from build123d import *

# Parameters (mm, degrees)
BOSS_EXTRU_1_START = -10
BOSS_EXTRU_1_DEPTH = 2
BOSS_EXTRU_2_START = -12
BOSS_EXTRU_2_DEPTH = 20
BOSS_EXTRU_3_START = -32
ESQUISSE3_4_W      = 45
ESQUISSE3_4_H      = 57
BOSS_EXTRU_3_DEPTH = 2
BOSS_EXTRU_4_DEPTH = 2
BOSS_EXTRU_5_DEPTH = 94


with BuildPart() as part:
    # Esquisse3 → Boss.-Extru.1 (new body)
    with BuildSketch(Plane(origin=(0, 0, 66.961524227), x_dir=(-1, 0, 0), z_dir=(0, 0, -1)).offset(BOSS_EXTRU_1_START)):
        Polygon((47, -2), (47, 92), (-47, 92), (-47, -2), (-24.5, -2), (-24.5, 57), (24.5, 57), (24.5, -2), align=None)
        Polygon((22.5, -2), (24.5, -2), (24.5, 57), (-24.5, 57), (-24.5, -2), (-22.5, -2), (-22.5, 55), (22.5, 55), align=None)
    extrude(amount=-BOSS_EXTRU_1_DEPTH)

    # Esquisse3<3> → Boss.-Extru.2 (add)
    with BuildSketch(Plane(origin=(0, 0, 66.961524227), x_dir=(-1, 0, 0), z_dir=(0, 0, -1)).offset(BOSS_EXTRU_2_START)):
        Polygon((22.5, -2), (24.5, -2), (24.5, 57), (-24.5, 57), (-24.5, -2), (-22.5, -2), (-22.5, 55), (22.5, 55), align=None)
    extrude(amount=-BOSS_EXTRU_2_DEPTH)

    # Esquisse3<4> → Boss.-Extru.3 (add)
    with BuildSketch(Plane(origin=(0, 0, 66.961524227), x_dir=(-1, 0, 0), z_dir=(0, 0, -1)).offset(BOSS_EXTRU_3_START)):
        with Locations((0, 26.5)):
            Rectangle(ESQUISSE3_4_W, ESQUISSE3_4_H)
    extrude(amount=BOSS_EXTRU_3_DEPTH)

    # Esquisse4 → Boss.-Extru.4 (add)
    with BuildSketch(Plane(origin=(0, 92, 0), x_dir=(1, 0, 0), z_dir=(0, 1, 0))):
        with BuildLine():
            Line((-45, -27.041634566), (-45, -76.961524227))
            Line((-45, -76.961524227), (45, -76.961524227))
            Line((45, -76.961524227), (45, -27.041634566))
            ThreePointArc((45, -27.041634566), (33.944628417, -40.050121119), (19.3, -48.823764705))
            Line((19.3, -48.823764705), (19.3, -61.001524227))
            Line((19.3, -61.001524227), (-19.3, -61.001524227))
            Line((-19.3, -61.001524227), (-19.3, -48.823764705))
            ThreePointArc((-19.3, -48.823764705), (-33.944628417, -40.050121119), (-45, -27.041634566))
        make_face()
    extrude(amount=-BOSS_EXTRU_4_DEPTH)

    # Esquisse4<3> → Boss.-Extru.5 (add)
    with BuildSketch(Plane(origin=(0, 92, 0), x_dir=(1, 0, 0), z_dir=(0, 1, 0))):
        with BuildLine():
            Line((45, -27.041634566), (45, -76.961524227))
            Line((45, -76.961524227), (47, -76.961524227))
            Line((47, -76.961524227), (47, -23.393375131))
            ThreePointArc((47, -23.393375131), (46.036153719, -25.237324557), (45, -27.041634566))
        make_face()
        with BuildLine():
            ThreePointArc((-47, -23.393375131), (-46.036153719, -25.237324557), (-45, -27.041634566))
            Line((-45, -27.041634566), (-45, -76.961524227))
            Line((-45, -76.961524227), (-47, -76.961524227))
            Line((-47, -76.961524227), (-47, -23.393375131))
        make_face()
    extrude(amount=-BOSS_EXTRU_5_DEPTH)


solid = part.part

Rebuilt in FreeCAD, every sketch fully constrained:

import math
import FreeCAD as App
import Part
import Sketcher

V = App.Vector


def add_polygon(sketch, points):
    """Adds a closed chain of lines whose ends are joined by coincident constraints."""
    first, n = sketch.GeometryCount, len(points)
    for a, b in zip(points, points[1:] + points[:1]):
        sketch.addGeometry(Part.LineSegment(App.Vector(*a, 0), App.Vector(*b, 0)), False)
    for i in range(n):
        sketch.addConstraint(Sketcher.Constraint("Coincident", first + i, 2, first + (i + 1) % n, 1))

doc = App.newDocument("Part")
params = doc.addObject("Spreadsheet::Sheet", "Params")
for row, (alias, value) in enumerate([
    ("sketch1_width", "94 mm"),
    ("sketch1_width2", "45 mm"),
    ("sketch1_height", "57 mm"),
    ("pad1_length", "2 mm"),
    ("sketch2_width", "2 mm"),
    ("sketch2_width2", "49 mm"),
    ("sketch2_height", "59 mm"),
    ("sketch2_height2", "57 mm"),
    ("pad2_length", "20 mm"),
    ("sketch3_width", "45 mm"),
    ("sketch3_height", "57 mm"),
    ("pad3_length", "2 mm"),
    ("sketch4_radius", "52.5 mm"),
    ("sketch4_width", "90 mm"),
    ("sketch4_width2", "38.6 mm"),
    ("pad4_length", "2 mm"),
    ("sketch5_radius", "52.5 mm"),
    ("sketch5_width", "2 mm"),
    ("pad5_length", "94 mm"),
], start=1):
    params.set(f"A{row}", alias)
    params.set(f"B{row}", "=" + value)
    params.setAlias(f"B{row}", alias)

body = doc.addObject("PartDesign::Body", "Body")

sketch1 = body.newObject("Sketcher::SketchObject", "Sketch")
sketch1.AttachmentSupport = (doc.getObject("XY_Plane"), [""])
sketch1.MapMode = "FlatFace"
sketch1.AttachmentOffset = App.Placement(V(0, 0, 76.961524), App.Rotation())
add_polygon(sketch1, [(-47, -2), (-47, 92), (47, 92), (47, -2), (22, -2), (22, 55), (-22, 55), (-22, -2)])
sketch1.addConstraint([
    Sketcher.Constraint("Vertical", 0),
    Sketcher.Constraint("Horizontal", 1),
    Sketcher.Constraint("Vertical", 2),
    Sketcher.Constraint("Horizontal", 3),
    Sketcher.Constraint("Vertical", 4),
    Sketcher.Constraint("Horizontal", 5),
    Sketcher.Constraint("Vertical", 6),
    Sketcher.Constraint("Horizontal", 7),
    Sketcher.Constraint("Symmetric", 3, 2, 6, 2, -2),
    Sketcher.Constraint("Equal", 3, 7),
    Sketcher.Constraint("Equal", 1, 0),
    Sketcher.Constraint("DistanceX", 1, 1, 1, 2, 94.0),
    Sketcher.Constraint("DistanceX", 5, 2, 5, 1, 45.0),
    Sketcher.Constraint("DistanceY", 4, 1, 4, 2, 57.0),
    Sketcher.Constraint("DistanceY", -1, 1, 0, 2, 92.0),
])
sketch1.setExpression("Constraints[19]", "Params.sketch1_width")
sketch1.setExpression("Constraints[20]", "Params.sketch1_width2")
sketch1.setExpression("Constraints[21]", "Params.sketch1_height")
pad1 = body.newObject("PartDesign::Pad", "Pad")
pad1.Profile = sketch1
pad1.setExpression("Length", "Params.pad1_length")

sketch2 = body.newObject("Sketcher::SketchObject", "Sketch001")
sketch2.AttachmentSupport = (doc.getObject("XY_Plane"), [""])
sketch2.MapMode = "FlatFace"
sketch2.AttachmentOffset = App.Placement(V(0, 0, 78.961524), App.Rotation())
add_polygon(sketch2, [(-22.5, -2), (-24.5, -2), (-24.5, 57), (24.5, 57), (24.5, -2), (22.5, -2), (22.5, 55), (-22.5, 55)])
sketch2.addConstraint([
    Sketcher.Constraint("Horizontal", 0),
    Sketcher.Constraint("Vertical", 1),
    Sketcher.Constraint("Horizontal", 2),
    Sketcher.Constraint("Vertical", 3),
    Sketcher.Constraint("Horizontal", 4),
    Sketcher.Constraint("Vertical", 5),
    Sketcher.Constraint("Horizontal", 6),
    Sketcher.Constraint("Vertical", 7),
    Sketcher.Constraint("Symmetric", 0, 2, 3, 2, -2),
    Sketcher.Constraint("Equal", 0, 4),
    Sketcher.Constraint("DistanceX", 0, 2, 0, 1, 2.0),
    Sketcher.Constraint("DistanceX", 2, 1, 2, 2, 49.0),
    Sketcher.Constraint("DistanceY", 1, 1, 1, 2, 59.0),
    Sketcher.Constraint("DistanceY", 5, 1, 5, 2, 57.0),
    Sketcher.Constraint("DistanceY", 0, 2, -1, 1, 2.0),
])
sketch2.setExpression("Constraints[18]", "Params.sketch2_width")
sketch2.setExpression("Constraints[19]", "Params.sketch2_width2")
sketch2.setExpression("Constraints[20]", "Params.sketch2_height")
sketch2.setExpression("Constraints[21]", "Params.sketch2_height2")
pad2 = body.newObject("PartDesign::Pad", "Pad001")
pad2.Profile = sketch2
pad2.setExpression("Length", "Params.pad2_length")

sketch3 = body.newObject("Sketcher::SketchObject", "Sketch002")
sketch3.AttachmentSupport = (doc.getObject("XY_Plane"), [""])
sketch3.MapMode = "FlatFace"
sketch3.AttachmentOffset = App.Placement(V(0, 0, 98.961524), App.Rotation())
add_polygon(sketch3, [(22, 55), (22, -2), (-22, -2), (-22, 55)])
sketch3.addConstraint([
    Sketcher.Constraint("Vertical", 0),
    Sketcher.Constraint("Horizontal", 1),
    Sketcher.Constraint("Vertical", 2),
    Sketcher.Constraint("Horizontal", 3),
    Sketcher.Constraint("DistanceX", 1, 2, 1, 1, 45.0),
    Sketcher.Constraint("DistanceY", 0, 2, 0, 1, 57.0),
    Sketcher.Constraint("DistanceY", 0, 2, -1, 1, 2.0),
    Sketcher.Constraint("DistanceX", -1, 1, 0, 2, 22.5),
])
sketch3.setExpression("Constraints[8]", "Params.sketch3_width")
sketch3.setExpression("Constraints[9]", "Params.sketch3_height")
pad3 = body.newObject("PartDesign::Pad", "Pad002")
pad3.Profile = sketch3
pad3.setExpression("Length", "Params.pad3_length")
pad3.Reversed = True

sketch4 = body.newObject("Sketcher::SketchObject", "Sketch003")
sketch4.AttachmentSupport = (doc.getObject("XZ_Plane"), [""])
sketch4.MapMode = "FlatFace"
sketch4.AttachmentOffset = App.Placement(V(0, 0, -92), App.Rotation())
sketch4.addGeometry([
    Part.LineSegment(V(-45, 27, 0), V(-45, 77, 0)),
    Part.LineSegment(V(-45, 77, 0), V(45, 77, 0)),
    Part.LineSegment(V(45, 77, 0), V(45, 27, 0)),
    Part.ArcOfCircle(Part.Circle(V(0, 0, 0), V(0, 0, 1), 52), math.radians(31), math.radians(68)),
    Part.LineSegment(V(19, 49, 0), V(19, 61, 0)),
    Part.LineSegment(V(19, 61, 0), V(-19, 61, 0)),
    Part.LineSegment(V(-19, 61, 0), V(-19, 49, 0)),
    Part.ArcOfCircle(Part.Circle(V(0, 0, 0), V(0, 0, 1), 52), math.radians(112), math.radians(149)),
], False)
sketch4.addConstraint([
    Sketcher.Constraint("Coincident", 0, 2, 1, 1),
    Sketcher.Constraint("Coincident", 1, 2, 2, 1),
    Sketcher.Constraint("Coincident", 2, 2, 3, 1),
    Sketcher.Constraint("Coincident", 3, 2, 4, 1),
    Sketcher.Constraint("Coincident", 4, 2, 5, 1),
    Sketcher.Constraint("Coincident", 5, 2, 6, 1),
    Sketcher.Constraint("Coincident", 6, 2, 7, 1),
    Sketcher.Constraint("Coincident", 7, 2, 0, 1),
    Sketcher.Constraint("Vertical", 0),
    Sketcher.Constraint("Horizontal", 1),
    Sketcher.Constraint("Vertical", 2),
    Sketcher.Constraint("Vertical", 4),
    Sketcher.Constraint("Horizontal", 5),
    Sketcher.Constraint("Vertical", 6),
    Sketcher.Constraint("Coincident", 3, 3, -1, 1),
    Sketcher.Constraint("Coincident", 7, 3, -1, 1),
    Sketcher.Constraint("Equal", 3, 7),
    Sketcher.Constraint("Horizontal", 3, 2, 6, 2),
    Sketcher.Constraint("Horizontal", 2, 2, 7, 2),
    Sketcher.Constraint("Radius", 3, 52.5),
    Sketcher.Constraint("DistanceX", 1, 1, 1, 2, 90.0),
    Sketcher.Constraint("DistanceX", 5, 2, 5, 1, 38.6),
    Sketcher.Constraint("DistanceY", 4, 2, 1, 2, 15.96),
    Sketcher.Constraint("DistanceY", 0, 1, 0, 2, 49.91989),
])
sketch4.setExpression("Constraints[19]", "Params.sketch4_radius")
sketch4.setExpression("Constraints[20]", "Params.sketch4_width")
sketch4.setExpression("Constraints[21]", "Params.sketch4_width2")
pad4 = body.newObject("PartDesign::Pad", "Pad003")
pad4.Profile = sketch4
pad4.setExpression("Length", "Params.pad4_length")

sketch5 = body.newObject("Sketcher::SketchObject", "Sketch004")
sketch5.AttachmentSupport = (doc.getObject("XZ_Plane"), [""])
sketch5.MapMode = "FlatFace"
sketch5.AttachmentOffset = App.Placement(V(0, 0, -92), App.Rotation())
sketch5.addGeometry([
    Part.LineSegment(V(45, 27, 0), V(45, 77, 0)),
    Part.LineSegment(V(45, 77, 0), V(47, 77, 0)),
    Part.LineSegment(V(47, 77, 0), V(47, 23.4, 0)),
    Part.ArcOfCircle(Part.Circle(V(0, 0, 0), V(0, 0, 1), 52.5), math.radians(26.46), math.radians(31)),
    Part.ArcOfCircle(Part.Circle(V(0, 0, 0), V(0, 0, 1), 52.5), math.radians(149), math.radians(153.54)),
    Part.LineSegment(V(-47, 23.4, 0), V(-47, 77, 0)),
    Part.LineSegment(V(-47, 77, 0), V(-45, 77, 0)),
    Part.LineSegment(V(-45, 77, 0), V(-45, 27, 0)),
], False)
sketch5.addConstraint([
    Sketcher.Constraint("Coincident", 0, 2, 1, 1),
    Sketcher.Constraint("Coincident", 1, 2, 2, 1),
    Sketcher.Constraint("Coincident", 2, 2, 3, 1),
    Sketcher.Constraint("Coincident", 3, 2, 0, 1),
    Sketcher.Constraint("Coincident", 4, 2, 5, 1),
    Sketcher.Constraint("Coincident", 5, 2, 6, 1),
    Sketcher.Constraint("Coincident", 6, 2, 7, 1),
    Sketcher.Constraint("Coincident", 7, 2, 4, 1),
    Sketcher.Constraint("Vertical", 0),
    Sketcher.Constraint("Horizontal", 1),
    Sketcher.Constraint("Vertical", 2),
    Sketcher.Constraint("Vertical", 5),
    Sketcher.Constraint("Horizontal", 6),
    Sketcher.Constraint("Vertical", 7),
    Sketcher.Constraint("Coincident", 3, 3, -1, 1),
    Sketcher.Constraint("Coincident", 4, 3, -1, 1),
    Sketcher.Constraint("Equal", 3, 4),
    Sketcher.Constraint("Symmetric", 1, 2, 5, 2, -2),
    Sketcher.Constraint("Horizontal", 3, 2, 7, 2),
    Sketcher.Constraint("Radius", 3, 52.5),
    Sketcher.Constraint("DistanceX", 1, 1, 1, 2, 2.0),
    Sketcher.Constraint("DistanceX", -1, 1, 0, 2, 45.0),
    Sketcher.Constraint("DistanceY", 0, 1, 0, 2, 49.91989),
])
sketch5.setExpression("Constraints[19]", "Params.sketch5_radius")
sketch5.setExpression("Constraints[20]", "Params.sketch5_width")
pad5 = body.newObject("PartDesign::Pad", "Pad004")
pad5.Profile = sketch5
pad5.setExpression("Length", "Params.pad5_length")

doc.recompute()
